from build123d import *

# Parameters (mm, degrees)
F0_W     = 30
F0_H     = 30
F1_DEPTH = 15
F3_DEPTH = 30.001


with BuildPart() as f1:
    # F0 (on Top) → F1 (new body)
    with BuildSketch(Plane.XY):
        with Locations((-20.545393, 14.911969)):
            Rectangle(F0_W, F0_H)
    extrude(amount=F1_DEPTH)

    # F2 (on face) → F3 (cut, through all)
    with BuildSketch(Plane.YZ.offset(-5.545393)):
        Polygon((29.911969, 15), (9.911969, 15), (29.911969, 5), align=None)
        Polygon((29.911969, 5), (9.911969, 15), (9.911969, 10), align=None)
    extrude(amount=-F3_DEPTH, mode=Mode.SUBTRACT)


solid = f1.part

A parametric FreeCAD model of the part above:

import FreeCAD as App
import Part
import Sketcher

doc = App.newDocument("Part")
body = doc.addObject("PartDesign::Body", "Body")

# Sketch on XY plane
sketch1 = body.newObject("Sketcher::SketchObject", "Sketch")
sketch1.AttachmentSupport = (doc.getObject("XY_Plane"), [""])
sketch1.MapMode = "FlatFace"
sketch1.addGeometry([
    Part.LineSegment(App.Vector(-35.545393, 29.911969, 0), App.Vector(-35.545393, -0.088031, 0)),
    Part.LineSegment(App.Vector(-35.545393, -0.088031, 0), App.Vector(-5.545393, -0.088031, 0)),
    Part.LineSegment(App.Vector(-5.545393, -0.088031, 0), App.Vector(-5.545393, 29.911969, 0)),
    Part.LineSegment(App.Vector(-5.545393, 29.911969, 0), App.Vector(-35.545393, 29.911969, 0)),
], False)
sketch1.addConstraint([
    Sketcher.Constraint("Coincident", 0, 2, 1, 1),
    Sketcher.Constraint("Coincident", 1, 2, 2, 1),
    Sketcher.Constraint("Coincident", 2, 2, 3, 1),
    Sketcher.Constraint("Coincident", 3, 2, 0, 1),
    Sketcher.Constraint("Vertical", 0),
    Sketcher.Constraint("Horizontal", 1),
    Sketcher.Constraint("Vertical", 2),
    Sketcher.Constraint("Horizontal", 3),
    Sketcher.Constraint("Equal", 3, 0),
    Sketcher.Constraint("DistanceX", 1, 1, 1, 2, 30.0),
    Sketcher.Constraint("DistanceY", 0, 2, -1, 1, 0.088031),
    Sketcher.Constraint("DistanceX", 0, 2, -1, 1, 35.545393),
])
pad1 = body.newObject("PartDesign::Pad", "Pad")
pad1.Profile = sketch1
pad1.Length = 15

# Sketch on YZ plane
sketch2 = body.newObject("Sketcher::SketchObject", "Sketch001")
sketch2.AttachmentSupport = (doc.getObject("YZ_Plane"), [""])
sketch2.MapMode = "FlatFace"
sketch2.AttachmentOffset = App.Placement(App.Vector(0, 0, -5.545393), App.Rotation())
sketch2.addGeometry([
    Part.LineSegment(App.Vector(29.911969, 15, 0), App.Vector(9.911969, 15, 0)),
    Part.LineSegment(App.Vector(9.911969, 15, 0), App.Vector(9.911969, 10, 0)),
    Part.LineSegment(App.Vector(9.911969, 10, 0), App.Vector(29.911969, 5, 0)),
    Part.LineSegment(App.Vector(29.911969, 5, 0), App.Vector(29.911969, 15, 0)),
], False)
sketch2.addConstraint([
    Sketcher.Constraint("Coincident", 0, 2, 1, 1),
    Sketcher.Constraint("Coincident", 1, 2, 2, 1),
    Sketcher.Constraint("Coincident", 2, 2, 3, 1),
    Sketcher.Constraint("Coincident", 3, 2, 0, 1),
    Sketcher.Constraint("Horizontal", 0),
    Sketcher.Constraint("Vertical", 1),
    Sketcher.Constraint("Vertical", 3),
    Sketcher.Constraint("DistanceX", 0, 2, 0, 1, 20.0),
    Sketcher.Constraint("DistanceY", 1, 2, 1, 1, 5.0),
    Sketcher.Constraint("DistanceY", 3, 1, 3, 2, 10.0),
    Sketcher.Constraint("DistanceY", -1, 1, 0, 2, 15.0),
    Sketcher.Constraint("DistanceX", -1, 1, 0, 2, 9.911969),
])
pocket1 = body.newObject("PartDesign::Pocket", "Pocket")
pocket1.Profile = sketch2
pocket1.Type = "ThroughAll"

doc.recompute()
